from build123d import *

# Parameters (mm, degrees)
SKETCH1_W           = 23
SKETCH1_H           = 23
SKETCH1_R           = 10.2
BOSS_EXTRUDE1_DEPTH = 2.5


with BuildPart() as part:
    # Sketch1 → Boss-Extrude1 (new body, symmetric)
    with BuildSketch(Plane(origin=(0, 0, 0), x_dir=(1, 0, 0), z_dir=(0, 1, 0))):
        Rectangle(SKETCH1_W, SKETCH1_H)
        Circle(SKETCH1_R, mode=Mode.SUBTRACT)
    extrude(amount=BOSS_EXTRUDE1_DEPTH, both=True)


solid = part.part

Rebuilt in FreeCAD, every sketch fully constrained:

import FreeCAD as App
import Part
import Sketcher
Q = App.Units.Quantity

doc = App.newDocument("Part")
body = doc.addObject("PartDesign::Body", "Body")

# Sketch on XZ plane
sketch1 = doc.addObject("Sketcher::SketchObject", "Sketch")
body.addObject(sketch1)
sketch1.AttachmentSupport = (doc.XZ_Plane, [""])
sketch1.MapMode = "FlatFace"
sketch1.addGeometry([
    Part.LineSegment(App.Vector(-11.5, -11.5, 0), App.Vector(-11.5, 11.5, 0)),  # 0
    Part.LineSegment(App.Vector(-11.5, 11.5, 0), App.Vector(11.5, 11.5, 0)),  # 1
    Part.LineSegment(App.Vector(11.5, 11.5, 0), App.Vector(11.5, -11.5, 0)),  # 2
    Part.LineSegment(App.Vector(11.5, -11.5, 0), App.Vector(-11.5, -11.5, 0)),  # 3
    Part.Circle(App.Vector(0, 0, 0), App.Vector(0, 0, 1), 10.2),  # 4
], False)
sketch1.addConstraint([
    Sketcher.Constraint("Coincident", 0, 2, 1, 1),
    Sketcher.Constraint("Coincident", 1, 2, 2, 1),
    Sketcher.Constraint("Coincident", 2, 2, 3, 1),
    Sketcher.Constraint("Coincident", 3, 2, 0, 1),
    Sketcher.Constraint("Vertical", 0),
    Sketcher.Constraint("Horizontal", 1),
    Sketcher.Constraint("Vertical", 2),
    Sketcher.Constraint("Horizontal", 3),
    Sketcher.Constraint("Coincident", 4, 3, -1, 1),
    Sketcher.Constraint("Symmetric", 0, 2, 2, 2, -1, 1),
    Sketcher.Constraint("Equal", 3, 0),
    Sketcher.Constraint("Diameter", 4, Q("20.4 mm")),
    Sketcher.Constraint("DistanceX", 1, 1, 1, 2, Q("23 mm")),
])
pad1 = doc.addObject("PartDesign::Pad", "Pad")
body.addObject(pad1)
pad1.Profile = sketch1
pad1.Length = 5
pad1.Midplane = True

doc.recompute()
